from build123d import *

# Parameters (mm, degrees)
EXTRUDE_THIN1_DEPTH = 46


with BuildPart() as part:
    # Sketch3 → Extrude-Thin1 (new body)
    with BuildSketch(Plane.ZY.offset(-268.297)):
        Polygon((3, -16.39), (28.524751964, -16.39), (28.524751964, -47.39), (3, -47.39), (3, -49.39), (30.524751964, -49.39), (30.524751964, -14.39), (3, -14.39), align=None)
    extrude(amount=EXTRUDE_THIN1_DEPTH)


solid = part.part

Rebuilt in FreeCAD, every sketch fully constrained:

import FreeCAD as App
import Part
import Sketcher
from FreeCAD import Vector
Q = App.Units.Quantity


def add_polygon(sketch, points):
    """Adds a closed chain of lines whose ends are joined by coincident constraints."""
    first, n = sketch.GeometryCount, len(points)
    for a, b in zip(points, points[1:] + points[:1]):
        sketch.addGeometry(Part.LineSegment(App.Vector(*a, 0), App.Vector(*b, 0)), False)
    for i in range(n):
        sketch.addConstraint(Sketcher.Constraint("Coincident", first + i, 2, first + (i + 1) % n, 1))

doc = App.newDocument("Part")
body = doc.addObject("PartDesign::Body", "Body")

# Sketch on YZ plane
sketch1 = body.newObject("Sketcher::SketchObject", "Sketch")
sketch1.AttachmentSupport = (doc.getObject("YZ_Plane"), [""])
sketch1.MapMode = "FlatFace"
sketch1.AttachmentOffset = App.Placement(Vector(0, 0, 268.297), App.Rotation())
add_polygon(sketch1, [(-16.39, 3), (-16.39, 28.524752), (-47.39, 28.524752), (-47.39, 3), (-49.39, 3), (-49.39, 30.524752), (-14.39, 30.524752), (-14.39, 3)])  # lines 0-7
sketch1.addConstraint([
    Sketcher.Constraint("Vertical", 0),
    Sketcher.Constraint("Horizontal", 1),
    Sketcher.Constraint("Vertical", 2),
    Sketcher.Constraint("Horizontal", 3),
    Sketcher.Constraint("Vertical", 4),
    Sketcher.Constraint("Horizontal", 5),
    Sketcher.Constraint("Vertical", 6),
    Sketcher.Constraint("Horizontal", 7),
    Sketcher.Constraint("Horizontal", 3, 2, 6, 2),
    Sketcher.Constraint("Equal", 3, 7),
    Sketcher.Constraint("DistanceX", 1, 2, 1, 1, Q("31 mm")),
    Sketcher.Constraint("DistanceX", 3, 2, 3, 1, Q("2 mm")),
    Sketcher.Constraint("DistanceY", -1, 1, 2, 2, Q("3 mm")),
    Sketcher.Constraint("DistanceY", 1, 2, 4, 2, Q("2 mm")),
    Sketcher.Constraint("DistanceX", 0, 2, -1, 1, Q("16.39 mm")),
    Sketcher.Constraint("DistanceY", 0, 1, 0, 2, Q("25.524752 mm")),
])
pad1 = body.newObject("PartDesign::Pad", "Pad")
pad1.Profile = sketch1
pad1.Length = 46
pad1.Reversed = True

doc.recompute()
